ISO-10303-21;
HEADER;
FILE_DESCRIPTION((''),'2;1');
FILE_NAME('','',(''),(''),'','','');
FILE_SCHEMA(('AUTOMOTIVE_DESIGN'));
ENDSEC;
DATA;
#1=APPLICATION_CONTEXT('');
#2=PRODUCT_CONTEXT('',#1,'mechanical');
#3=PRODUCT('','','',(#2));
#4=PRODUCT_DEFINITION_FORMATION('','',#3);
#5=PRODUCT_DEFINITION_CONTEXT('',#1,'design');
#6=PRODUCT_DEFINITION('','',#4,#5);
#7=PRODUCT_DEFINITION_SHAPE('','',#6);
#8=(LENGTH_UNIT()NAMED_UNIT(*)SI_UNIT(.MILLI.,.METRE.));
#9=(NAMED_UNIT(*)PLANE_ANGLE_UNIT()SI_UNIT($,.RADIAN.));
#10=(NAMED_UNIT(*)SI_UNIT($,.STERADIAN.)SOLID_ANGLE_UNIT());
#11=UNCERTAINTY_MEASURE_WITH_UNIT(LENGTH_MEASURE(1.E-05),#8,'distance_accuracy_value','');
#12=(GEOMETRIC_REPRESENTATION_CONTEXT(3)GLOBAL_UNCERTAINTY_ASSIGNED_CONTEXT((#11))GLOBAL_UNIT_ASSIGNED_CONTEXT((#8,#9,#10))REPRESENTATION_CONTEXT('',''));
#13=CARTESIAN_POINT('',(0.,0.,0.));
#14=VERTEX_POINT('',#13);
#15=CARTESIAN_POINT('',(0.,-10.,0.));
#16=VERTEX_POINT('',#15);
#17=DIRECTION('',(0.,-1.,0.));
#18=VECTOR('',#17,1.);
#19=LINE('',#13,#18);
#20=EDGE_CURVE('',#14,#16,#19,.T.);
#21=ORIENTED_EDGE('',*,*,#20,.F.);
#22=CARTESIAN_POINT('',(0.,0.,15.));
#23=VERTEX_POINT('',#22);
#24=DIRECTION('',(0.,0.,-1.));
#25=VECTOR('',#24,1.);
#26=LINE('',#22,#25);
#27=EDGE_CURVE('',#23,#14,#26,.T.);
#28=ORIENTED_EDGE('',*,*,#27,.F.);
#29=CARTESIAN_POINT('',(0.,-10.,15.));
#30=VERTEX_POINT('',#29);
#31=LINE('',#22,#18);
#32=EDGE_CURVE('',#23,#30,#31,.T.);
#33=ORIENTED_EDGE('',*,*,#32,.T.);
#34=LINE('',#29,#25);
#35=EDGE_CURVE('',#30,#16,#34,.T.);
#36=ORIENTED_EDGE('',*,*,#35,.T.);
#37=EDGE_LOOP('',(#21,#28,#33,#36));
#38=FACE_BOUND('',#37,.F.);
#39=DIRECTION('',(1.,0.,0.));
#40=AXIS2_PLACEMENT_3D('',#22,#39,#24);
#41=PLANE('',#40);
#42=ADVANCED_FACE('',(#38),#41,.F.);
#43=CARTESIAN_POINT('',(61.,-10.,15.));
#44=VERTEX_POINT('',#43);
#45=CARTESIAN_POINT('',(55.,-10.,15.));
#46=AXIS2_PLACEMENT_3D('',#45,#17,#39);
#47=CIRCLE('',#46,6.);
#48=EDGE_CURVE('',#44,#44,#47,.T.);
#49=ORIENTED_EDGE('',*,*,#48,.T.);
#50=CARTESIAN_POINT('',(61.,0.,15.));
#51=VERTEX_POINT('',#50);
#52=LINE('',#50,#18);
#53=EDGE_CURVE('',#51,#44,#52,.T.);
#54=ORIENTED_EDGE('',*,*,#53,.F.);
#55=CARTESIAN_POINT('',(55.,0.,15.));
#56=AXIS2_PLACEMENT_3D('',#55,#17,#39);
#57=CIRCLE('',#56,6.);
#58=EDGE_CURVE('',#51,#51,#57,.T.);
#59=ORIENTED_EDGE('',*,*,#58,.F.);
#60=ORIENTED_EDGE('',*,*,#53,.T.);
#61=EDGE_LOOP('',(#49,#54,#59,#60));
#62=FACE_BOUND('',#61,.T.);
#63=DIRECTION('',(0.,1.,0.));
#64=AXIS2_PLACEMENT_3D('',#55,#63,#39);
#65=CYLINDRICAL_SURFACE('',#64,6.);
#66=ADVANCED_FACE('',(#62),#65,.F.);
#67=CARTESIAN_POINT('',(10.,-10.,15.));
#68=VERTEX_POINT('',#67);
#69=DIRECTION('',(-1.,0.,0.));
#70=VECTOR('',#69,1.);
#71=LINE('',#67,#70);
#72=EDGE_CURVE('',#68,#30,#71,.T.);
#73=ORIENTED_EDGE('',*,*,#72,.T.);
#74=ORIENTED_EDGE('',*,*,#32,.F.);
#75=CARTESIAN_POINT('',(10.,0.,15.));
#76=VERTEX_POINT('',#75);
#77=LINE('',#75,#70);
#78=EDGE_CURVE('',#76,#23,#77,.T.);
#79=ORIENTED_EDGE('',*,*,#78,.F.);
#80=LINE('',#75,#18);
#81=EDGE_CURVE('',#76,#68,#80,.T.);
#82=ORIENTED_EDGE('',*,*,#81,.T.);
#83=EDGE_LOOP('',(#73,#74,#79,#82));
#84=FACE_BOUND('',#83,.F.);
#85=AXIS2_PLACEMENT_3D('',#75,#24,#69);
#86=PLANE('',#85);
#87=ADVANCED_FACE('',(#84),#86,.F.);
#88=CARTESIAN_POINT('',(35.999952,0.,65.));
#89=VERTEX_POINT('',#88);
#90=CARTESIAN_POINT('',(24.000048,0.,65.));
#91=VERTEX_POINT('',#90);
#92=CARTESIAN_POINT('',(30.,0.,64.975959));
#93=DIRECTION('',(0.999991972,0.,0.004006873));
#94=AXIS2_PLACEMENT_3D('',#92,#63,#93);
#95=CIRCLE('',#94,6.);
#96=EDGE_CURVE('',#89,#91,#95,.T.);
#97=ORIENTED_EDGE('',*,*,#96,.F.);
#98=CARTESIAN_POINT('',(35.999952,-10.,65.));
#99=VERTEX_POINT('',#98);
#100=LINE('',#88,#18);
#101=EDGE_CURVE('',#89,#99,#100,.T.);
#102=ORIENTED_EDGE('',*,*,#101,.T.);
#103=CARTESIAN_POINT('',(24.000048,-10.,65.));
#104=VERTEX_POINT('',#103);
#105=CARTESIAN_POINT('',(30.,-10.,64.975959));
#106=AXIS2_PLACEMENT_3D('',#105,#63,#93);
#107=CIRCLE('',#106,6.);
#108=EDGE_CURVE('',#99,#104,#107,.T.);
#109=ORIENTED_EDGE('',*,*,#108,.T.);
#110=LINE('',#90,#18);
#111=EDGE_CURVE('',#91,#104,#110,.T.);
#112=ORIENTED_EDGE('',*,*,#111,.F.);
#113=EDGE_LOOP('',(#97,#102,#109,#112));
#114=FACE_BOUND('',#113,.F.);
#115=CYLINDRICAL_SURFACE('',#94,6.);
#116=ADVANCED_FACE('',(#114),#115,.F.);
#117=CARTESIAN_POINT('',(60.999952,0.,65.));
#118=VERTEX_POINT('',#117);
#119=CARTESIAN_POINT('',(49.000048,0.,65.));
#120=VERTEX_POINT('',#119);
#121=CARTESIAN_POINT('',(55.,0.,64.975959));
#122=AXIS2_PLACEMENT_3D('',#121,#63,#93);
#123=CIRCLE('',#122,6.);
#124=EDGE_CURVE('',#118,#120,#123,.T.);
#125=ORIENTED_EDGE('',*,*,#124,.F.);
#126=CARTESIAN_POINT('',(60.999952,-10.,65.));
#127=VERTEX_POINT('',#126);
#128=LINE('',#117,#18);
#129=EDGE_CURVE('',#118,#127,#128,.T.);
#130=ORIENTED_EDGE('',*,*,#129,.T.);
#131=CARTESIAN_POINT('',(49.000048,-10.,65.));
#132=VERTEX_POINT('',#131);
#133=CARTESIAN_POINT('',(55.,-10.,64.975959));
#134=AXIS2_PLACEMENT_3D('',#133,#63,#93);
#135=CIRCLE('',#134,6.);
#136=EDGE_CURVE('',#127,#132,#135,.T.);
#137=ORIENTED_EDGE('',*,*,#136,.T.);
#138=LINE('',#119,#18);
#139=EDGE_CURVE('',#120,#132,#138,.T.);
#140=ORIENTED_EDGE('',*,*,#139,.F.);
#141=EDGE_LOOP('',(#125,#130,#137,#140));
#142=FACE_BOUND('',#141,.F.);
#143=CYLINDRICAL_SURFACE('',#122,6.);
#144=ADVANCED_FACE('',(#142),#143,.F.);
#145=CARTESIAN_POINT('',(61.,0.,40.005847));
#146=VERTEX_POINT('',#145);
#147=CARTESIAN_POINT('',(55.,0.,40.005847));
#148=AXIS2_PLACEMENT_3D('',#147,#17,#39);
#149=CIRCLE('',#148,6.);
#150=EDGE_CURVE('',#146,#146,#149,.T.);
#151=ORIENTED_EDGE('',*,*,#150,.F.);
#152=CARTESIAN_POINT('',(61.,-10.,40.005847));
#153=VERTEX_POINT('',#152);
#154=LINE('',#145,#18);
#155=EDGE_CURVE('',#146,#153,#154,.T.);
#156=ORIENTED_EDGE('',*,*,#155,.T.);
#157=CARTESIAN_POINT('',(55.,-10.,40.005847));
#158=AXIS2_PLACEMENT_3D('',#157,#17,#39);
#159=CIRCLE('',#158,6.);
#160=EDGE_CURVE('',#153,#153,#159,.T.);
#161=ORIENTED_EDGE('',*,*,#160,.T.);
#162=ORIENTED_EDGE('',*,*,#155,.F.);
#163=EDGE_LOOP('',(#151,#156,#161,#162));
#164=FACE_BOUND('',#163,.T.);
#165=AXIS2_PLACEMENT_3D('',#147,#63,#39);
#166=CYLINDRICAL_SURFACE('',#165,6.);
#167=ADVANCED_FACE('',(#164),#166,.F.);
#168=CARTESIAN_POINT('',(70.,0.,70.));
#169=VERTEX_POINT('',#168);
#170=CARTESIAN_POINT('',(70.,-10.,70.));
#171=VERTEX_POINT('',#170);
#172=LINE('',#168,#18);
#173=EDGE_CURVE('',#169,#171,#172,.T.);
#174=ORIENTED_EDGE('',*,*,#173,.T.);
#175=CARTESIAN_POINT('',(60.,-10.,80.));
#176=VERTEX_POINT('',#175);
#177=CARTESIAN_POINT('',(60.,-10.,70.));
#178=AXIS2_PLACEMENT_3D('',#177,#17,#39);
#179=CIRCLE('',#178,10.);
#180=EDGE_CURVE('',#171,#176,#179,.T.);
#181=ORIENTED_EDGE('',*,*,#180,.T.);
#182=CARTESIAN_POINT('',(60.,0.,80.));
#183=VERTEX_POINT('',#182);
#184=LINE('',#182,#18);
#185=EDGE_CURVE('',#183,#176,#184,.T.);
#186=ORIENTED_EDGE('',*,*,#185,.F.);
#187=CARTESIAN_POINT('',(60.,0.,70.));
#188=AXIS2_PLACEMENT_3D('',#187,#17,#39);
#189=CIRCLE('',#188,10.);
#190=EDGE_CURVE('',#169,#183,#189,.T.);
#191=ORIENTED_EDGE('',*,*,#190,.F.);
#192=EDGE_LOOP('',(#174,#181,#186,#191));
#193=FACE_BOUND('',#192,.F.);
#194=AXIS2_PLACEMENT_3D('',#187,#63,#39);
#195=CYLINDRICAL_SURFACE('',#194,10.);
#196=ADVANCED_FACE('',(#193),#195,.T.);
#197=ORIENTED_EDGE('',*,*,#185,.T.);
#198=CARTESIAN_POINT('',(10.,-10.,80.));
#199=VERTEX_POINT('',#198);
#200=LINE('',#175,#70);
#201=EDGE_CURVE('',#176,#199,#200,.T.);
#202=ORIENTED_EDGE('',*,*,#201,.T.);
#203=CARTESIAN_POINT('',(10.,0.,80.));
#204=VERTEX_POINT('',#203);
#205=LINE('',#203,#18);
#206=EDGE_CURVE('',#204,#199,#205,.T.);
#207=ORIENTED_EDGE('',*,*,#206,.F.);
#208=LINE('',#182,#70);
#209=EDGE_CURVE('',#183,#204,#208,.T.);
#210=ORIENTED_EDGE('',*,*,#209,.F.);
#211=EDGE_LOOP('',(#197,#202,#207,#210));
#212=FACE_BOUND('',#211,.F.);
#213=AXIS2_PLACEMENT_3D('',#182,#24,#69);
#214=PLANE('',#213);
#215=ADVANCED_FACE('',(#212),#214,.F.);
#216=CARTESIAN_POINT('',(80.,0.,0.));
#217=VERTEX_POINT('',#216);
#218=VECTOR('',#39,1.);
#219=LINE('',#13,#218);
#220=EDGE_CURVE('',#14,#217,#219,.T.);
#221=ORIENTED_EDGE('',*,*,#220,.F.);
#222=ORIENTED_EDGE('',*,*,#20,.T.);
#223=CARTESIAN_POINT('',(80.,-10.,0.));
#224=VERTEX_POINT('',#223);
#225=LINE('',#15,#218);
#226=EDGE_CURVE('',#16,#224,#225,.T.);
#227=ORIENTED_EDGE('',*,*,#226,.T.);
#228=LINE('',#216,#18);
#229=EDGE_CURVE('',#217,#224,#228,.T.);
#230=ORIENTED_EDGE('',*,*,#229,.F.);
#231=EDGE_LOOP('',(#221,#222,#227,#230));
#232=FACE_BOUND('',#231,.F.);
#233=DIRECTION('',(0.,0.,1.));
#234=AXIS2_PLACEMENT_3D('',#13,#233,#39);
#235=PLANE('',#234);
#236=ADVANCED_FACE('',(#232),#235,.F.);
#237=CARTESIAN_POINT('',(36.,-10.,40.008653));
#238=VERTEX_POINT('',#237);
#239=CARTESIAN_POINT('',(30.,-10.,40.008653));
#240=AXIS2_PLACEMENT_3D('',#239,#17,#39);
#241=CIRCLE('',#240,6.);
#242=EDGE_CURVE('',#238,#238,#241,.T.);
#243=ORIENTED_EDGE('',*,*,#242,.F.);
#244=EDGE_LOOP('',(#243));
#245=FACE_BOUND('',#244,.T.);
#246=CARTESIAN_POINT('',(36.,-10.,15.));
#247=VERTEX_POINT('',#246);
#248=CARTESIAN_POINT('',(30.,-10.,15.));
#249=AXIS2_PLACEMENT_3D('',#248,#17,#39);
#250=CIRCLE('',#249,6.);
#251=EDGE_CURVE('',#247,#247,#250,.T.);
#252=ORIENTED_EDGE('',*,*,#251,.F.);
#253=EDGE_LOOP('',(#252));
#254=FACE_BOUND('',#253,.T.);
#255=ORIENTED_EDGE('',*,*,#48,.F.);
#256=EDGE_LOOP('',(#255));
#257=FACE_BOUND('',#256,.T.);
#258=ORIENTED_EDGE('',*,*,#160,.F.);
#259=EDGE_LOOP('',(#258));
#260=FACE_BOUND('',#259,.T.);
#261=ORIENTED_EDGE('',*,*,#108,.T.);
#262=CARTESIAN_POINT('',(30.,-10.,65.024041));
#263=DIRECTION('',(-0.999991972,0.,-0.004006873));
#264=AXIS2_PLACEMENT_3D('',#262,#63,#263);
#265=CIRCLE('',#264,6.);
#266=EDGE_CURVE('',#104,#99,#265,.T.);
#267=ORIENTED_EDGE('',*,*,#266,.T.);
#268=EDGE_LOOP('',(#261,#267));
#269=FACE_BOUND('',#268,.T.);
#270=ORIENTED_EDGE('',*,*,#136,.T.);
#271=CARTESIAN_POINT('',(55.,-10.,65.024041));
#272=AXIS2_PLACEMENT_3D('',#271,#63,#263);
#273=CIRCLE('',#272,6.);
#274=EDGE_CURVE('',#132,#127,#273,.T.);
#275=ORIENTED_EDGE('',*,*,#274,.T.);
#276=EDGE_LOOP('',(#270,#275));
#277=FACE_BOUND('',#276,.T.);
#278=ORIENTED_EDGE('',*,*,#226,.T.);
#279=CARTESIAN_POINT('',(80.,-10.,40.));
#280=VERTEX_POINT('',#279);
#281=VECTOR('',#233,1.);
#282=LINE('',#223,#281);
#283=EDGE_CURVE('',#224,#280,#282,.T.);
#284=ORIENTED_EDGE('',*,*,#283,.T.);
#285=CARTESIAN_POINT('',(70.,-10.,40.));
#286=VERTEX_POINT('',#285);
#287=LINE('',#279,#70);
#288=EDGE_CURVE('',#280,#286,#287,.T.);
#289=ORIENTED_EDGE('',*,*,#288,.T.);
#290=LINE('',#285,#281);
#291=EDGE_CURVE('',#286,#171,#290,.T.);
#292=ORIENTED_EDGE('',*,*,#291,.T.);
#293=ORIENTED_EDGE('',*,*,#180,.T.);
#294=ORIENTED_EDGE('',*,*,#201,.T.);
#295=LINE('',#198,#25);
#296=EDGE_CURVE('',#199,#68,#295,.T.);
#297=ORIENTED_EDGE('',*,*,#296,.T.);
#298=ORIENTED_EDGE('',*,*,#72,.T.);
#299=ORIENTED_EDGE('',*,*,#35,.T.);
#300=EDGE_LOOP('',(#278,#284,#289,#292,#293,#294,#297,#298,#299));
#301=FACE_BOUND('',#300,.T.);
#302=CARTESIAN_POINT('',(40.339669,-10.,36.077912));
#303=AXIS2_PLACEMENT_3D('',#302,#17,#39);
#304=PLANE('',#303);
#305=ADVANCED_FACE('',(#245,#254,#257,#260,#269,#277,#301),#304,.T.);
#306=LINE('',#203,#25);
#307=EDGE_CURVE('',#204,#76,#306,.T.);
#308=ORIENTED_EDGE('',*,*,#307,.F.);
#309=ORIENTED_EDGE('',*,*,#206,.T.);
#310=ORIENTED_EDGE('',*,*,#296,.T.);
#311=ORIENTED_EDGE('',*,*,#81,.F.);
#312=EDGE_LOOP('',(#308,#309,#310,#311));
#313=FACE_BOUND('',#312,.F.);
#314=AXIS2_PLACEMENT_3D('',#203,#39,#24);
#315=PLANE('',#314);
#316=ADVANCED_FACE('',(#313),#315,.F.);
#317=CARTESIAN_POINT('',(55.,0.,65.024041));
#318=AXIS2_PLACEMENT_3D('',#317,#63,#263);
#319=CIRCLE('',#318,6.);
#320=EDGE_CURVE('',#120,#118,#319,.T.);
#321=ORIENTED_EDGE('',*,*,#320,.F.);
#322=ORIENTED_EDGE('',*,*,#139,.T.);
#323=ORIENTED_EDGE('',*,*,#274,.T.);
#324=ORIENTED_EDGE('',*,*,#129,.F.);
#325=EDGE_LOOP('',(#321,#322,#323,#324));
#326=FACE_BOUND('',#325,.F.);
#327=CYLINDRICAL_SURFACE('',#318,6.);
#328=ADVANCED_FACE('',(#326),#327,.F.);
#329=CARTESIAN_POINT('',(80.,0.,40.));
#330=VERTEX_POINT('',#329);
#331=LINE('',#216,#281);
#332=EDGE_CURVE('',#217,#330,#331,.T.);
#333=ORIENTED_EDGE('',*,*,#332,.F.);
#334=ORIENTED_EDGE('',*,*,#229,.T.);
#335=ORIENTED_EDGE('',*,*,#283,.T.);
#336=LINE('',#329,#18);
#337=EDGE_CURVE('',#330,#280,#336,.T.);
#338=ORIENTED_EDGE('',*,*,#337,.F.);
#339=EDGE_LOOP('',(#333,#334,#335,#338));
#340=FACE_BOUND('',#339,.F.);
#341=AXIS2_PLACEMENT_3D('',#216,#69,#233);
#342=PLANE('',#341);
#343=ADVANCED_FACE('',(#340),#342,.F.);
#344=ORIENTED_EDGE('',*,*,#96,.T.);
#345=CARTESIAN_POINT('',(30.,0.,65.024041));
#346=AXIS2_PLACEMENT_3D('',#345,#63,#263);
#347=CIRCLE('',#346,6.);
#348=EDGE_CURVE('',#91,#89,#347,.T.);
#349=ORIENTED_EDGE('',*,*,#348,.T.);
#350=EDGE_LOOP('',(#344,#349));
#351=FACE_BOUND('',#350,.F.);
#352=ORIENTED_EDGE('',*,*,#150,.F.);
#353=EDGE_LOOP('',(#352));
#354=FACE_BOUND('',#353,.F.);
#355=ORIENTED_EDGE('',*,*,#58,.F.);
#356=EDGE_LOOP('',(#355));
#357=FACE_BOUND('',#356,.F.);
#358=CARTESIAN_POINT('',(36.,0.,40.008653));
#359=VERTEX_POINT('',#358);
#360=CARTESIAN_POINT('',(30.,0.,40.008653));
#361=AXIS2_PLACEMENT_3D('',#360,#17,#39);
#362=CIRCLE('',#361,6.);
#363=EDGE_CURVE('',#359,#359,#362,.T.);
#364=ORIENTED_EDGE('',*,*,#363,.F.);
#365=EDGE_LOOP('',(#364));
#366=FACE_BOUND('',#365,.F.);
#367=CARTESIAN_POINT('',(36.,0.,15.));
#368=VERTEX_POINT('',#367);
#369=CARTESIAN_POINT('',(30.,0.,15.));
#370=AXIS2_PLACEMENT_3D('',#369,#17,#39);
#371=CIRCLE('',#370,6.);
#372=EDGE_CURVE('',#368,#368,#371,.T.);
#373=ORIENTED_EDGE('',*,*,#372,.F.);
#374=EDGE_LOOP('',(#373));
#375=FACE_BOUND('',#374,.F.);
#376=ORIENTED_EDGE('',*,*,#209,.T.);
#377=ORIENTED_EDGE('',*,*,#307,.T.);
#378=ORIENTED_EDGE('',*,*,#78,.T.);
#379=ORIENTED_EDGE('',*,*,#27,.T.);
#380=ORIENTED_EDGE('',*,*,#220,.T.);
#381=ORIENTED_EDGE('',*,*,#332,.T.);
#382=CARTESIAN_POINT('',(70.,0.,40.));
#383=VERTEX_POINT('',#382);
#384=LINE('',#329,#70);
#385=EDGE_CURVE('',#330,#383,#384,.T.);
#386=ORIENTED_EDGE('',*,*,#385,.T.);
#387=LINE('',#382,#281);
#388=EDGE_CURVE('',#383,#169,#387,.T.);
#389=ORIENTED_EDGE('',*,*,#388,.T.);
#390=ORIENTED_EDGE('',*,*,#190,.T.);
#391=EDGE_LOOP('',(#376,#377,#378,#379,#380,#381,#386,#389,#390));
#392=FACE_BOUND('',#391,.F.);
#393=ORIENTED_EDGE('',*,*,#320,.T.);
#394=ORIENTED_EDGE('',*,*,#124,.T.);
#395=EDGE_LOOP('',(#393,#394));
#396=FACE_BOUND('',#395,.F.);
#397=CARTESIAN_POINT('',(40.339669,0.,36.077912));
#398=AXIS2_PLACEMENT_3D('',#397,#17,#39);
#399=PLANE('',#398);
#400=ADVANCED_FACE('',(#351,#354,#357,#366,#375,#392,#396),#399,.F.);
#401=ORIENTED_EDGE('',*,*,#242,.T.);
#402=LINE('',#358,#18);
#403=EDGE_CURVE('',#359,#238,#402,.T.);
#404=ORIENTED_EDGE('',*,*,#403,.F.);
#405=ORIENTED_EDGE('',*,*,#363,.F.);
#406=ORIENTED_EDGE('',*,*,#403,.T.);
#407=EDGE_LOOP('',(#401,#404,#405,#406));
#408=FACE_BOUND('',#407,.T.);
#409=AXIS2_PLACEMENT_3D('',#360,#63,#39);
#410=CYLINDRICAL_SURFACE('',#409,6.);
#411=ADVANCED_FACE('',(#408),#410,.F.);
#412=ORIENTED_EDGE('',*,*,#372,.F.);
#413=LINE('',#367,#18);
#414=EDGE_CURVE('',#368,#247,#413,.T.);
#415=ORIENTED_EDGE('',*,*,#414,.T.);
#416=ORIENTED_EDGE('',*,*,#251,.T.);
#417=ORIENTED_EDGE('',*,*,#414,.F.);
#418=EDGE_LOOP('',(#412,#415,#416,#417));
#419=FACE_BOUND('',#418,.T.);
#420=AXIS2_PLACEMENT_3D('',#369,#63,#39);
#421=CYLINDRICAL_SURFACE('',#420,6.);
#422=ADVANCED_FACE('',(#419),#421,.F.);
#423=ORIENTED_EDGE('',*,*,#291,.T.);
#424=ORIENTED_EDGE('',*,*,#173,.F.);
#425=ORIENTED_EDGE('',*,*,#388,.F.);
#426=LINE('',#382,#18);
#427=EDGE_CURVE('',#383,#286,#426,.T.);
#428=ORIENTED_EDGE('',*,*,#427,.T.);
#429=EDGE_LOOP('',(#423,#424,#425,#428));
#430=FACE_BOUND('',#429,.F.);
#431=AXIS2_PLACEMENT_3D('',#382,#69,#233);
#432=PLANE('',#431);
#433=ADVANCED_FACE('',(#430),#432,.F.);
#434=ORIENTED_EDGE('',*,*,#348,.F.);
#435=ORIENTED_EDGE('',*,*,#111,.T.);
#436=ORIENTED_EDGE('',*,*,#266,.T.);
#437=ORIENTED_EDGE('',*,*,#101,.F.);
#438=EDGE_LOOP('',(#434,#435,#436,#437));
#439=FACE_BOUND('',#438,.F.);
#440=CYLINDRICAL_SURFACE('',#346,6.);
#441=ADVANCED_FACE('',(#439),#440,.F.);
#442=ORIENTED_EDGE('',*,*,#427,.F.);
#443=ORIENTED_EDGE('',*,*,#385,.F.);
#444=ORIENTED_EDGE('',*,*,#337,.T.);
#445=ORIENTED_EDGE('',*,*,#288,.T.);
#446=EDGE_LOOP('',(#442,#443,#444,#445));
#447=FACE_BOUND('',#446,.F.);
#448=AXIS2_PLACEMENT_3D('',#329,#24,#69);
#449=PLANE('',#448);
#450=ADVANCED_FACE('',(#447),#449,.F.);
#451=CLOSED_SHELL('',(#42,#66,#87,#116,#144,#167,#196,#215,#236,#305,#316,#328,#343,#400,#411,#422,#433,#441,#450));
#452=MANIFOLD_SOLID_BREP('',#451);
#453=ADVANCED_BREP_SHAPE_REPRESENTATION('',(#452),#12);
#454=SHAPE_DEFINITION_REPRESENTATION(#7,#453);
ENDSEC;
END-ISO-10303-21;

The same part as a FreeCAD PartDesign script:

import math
import FreeCAD as App
import Part
import Sketcher
Q = App.Units.Quantity

doc = App.newDocument("Part")
body = doc.addObject("PartDesign::Body", "Body")

sketch1 = body.newObject("Sketcher::SketchObject", "Sketch")
sketch1.AttachmentSupport = (doc.getObject("XZ_Plane"), [""])
sketch1.MapMode = "FlatFace"
sketch1.addGeometry(Part.LineSegment(App.Vector(10, 15, 0), App.Vector(0, 15, 0)), False)
sketch1.addGeometry(Part.LineSegment(App.Vector(0, 15, 0), App.Vector(0, 0, 0)), False)
sketch1.addGeometry(Part.LineSegment(App.Vector(0, 0, 0), App.Vector(80, 0, 0)), False)
sketch1.addGeometry(Part.LineSegment(App.Vector(80, 0, 0), App.Vector(80, 40, 0)), False)
sketch1.addGeometry(Part.LineSegment(App.Vector(80, 40, 0), App.Vector(70, 40, 0)), False)
sketch1.addGeometry(Part.LineSegment(App.Vector(70, 40, 0), App.Vector(70, 70, 0)), False)
sketch1.addGeometry(Part.ArcOfCircle(Part.Circle(App.Vector(60, 70, 0), App.Vector(0, 0, 1), 10), math.radians(0), math.radians(90)), False)
sketch1.addGeometry(Part.LineSegment(App.Vector(60, 80, 0), App.Vector(10, 80, 0)), False)
sketch1.addGeometry(Part.LineSegment(App.Vector(10, 80, 0), App.Vector(10, 15, 0)), False)
sketch1.addGeometry(Part.Circle(App.Vector(30, 15, 0), App.Vector(0, 0, 1), 6), False)
sketch1.addGeometry(Part.Circle(App.Vector(30, 40.008653, 0), App.Vector(0, 0, 1), 6), False)
sketch1.addGeometry(Part.Circle(App.Vector(55, 15, 0), App.Vector(0, 0, 1), 6), False)
sketch1.addGeometry(Part.Circle(App.Vector(55, 40.005847, 0), App.Vector(0, 0, 1), 6), False)
sketch1.addGeometry(Part.ArcOfCircle(Part.Circle(App.Vector(30, 64.975959, 0), App.Vector(0, 0, 1), 6), math.radians(179.770423), math.radians(360.229577)), False)
sketch1.addGeometry(Part.ArcOfCircle(Part.Circle(App.Vector(30, 65.024041, 0), App.Vector(0, 0, 1), 6), math.radians(-0.229577), math.radians(180.229577)), False)
sketch1.addGeometry(Part.ArcOfCircle(Part.Circle(App.Vector(55, 64.975959, 0), App.Vector(0, 0, 1), 6), math.radians(179.770423), math.radians(360.229577)), False)
sketch1.addGeometry(Part.ArcOfCircle(Part.Circle(App.Vector(55, 65.024041, 0), App.Vector(0, 0, 1), 6), math.radians(-0.229577), math.radians(180.229577)), False)
sketch1.addConstraint(Sketcher.Constraint("Coincident", 0, 2, 1, 1))
sketch1.addConstraint(Sketcher.Constraint("Coincident", 1, 2, 2, 1))
sketch1.addConstraint(Sketcher.Constraint("Coincident", 2, 2, 3, 1))
sketch1.addConstraint(Sketcher.Constraint("Coincident", 3, 2, 4, 1))
sketch1.addConstraint(Sketcher.Constraint("Coincident", 4, 2, 5, 1))
sketch1.addConstraint(Sketcher.Constraint("Tangent", 5, 2, 6, 1))
sketch1.addConstraint(Sketcher.Constraint("Tangent", 6, 2, 7, 1))
sketch1.addConstraint(Sketcher.Constraint("Coincident", 7, 2, 8, 1))
sketch1.addConstraint(Sketcher.Constraint("Coincident", 8, 2, 0, 1))
sketch1.addConstraint(Sketcher.Constraint("Coincident", 13, 1, 14, 2))
sketch1.addConstraint(Sketcher.Constraint("Coincident", 14, 1, 13, 2))
sketch1.addConstraint(Sketcher.Constraint("Coincident", 15, 1, 16, 2))
sketch1.addConstraint(Sketcher.Constraint("Coincident", 16, 1, 15, 2))
sketch1.addConstraint(Sketcher.Constraint("Horizontal", 0))
sketch1.addConstraint(Sketcher.Constraint("Vertical", 1))
sketch1.addConstraint(Sketcher.Constraint("Horizontal", 2))
sketch1.addConstraint(Sketcher.Constraint("Vertical", 3))
sketch1.addConstraint(Sketcher.Constraint("Horizontal", 4))
sketch1.addConstraint(Sketcher.Constraint("Vertical", 5))
sketch1.addConstraint(Sketcher.Constraint("Horizontal", 7))
sketch1.addConstraint(Sketcher.Constraint("Vertical", 8))
sketch1.addConstraint(Sketcher.Constraint("Coincident", 1, 2, -1, 1))
sketch1.addConstraint(Sketcher.Constraint("Equal", 9, 10))
sketch1.addConstraint(Sketcher.Constraint("Equal", 10, 11))
sketch1.addConstraint(Sketcher.Constraint("Equal", 11, 12))
sketch1.addConstraint(Sketcher.Constraint("Equal", 12, 13))
sketch1.addConstraint(Sketcher.Constraint("Equal", 13, 14))
sketch1.addConstraint(Sketcher.Constraint("Equal", 14, 15))
sketch1.addConstraint(Sketcher.Constraint("Equal", 15, 16))
sketch1.addConstraint(Sketcher.Constraint("Horizontal", 9, 3, 11, 3))
sketch1.addConstraint(Sketcher.Constraint("Horizontal", 13, 3, 15, 3))
sketch1.addConstraint(Sketcher.Constraint("Horizontal", 14, 3, 16, 3))
sketch1.addConstraint(Sketcher.Constraint("Horizontal", 11, 3, 0, 2))
sketch1.addConstraint(Sketcher.Constraint("Horizontal", 13, 1, 14, 1))
sketch1.addConstraint(Sketcher.Constraint("Horizontal", 14, 1, 15, 1))
sketch1.addConstraint(Sketcher.Constraint("Vertical", 9, 3, 10, 3))
sketch1.addConstraint(Sketcher.Constraint("Vertical", 11, 3, 12, 3))
sketch1.addConstraint(Sketcher.Constraint("Vertical", 10, 3, 13, 3))
sketch1.addConstraint(Sketcher.Constraint("Vertical", 12, 3, 15, 3))
sketch1.addConstraint(Sketcher.Constraint("Equal", 0, 4))
sketch1.addConstraint(Sketcher.Constraint("Diameter", 9, Q("12 mm")))
sketch1.addConstraint(Sketcher.Constraint("Radius", 6, Q("10 mm")))
sketch1.addConstraint(Sketcher.Constraint("DistanceX", 0, 2, 0, 1, Q("10 mm")))
sketch1.addConstraint(Sketcher.Constraint("DistanceX", 2, 1, 2, 2, Q("80 mm")))
sketch1.addConstraint(Sketcher.Constraint("DistanceY", 1, 2, 1, 1, Q("15 mm")))
sketch1.addConstraint(Sketcher.Constraint("DistanceY", 3, 1, 3, 2, Q("40 mm")))
sketch1.addConstraint(Sketcher.Constraint("DistanceY", 5, 1, 5, 2, Q("30 mm")))
sketch1.addConstraint(Sketcher.Constraint("DistanceX", -1, 1, 9, 3, Q("30 mm")))
sketch1.addConstraint(Sketcher.Constraint("DistanceX", -1, 1, 11, 3, Q("55 mm")))
sketch1.addConstraint(Sketcher.Constraint("DistanceY", -1, 1, 13, 1, Q("65 mm")))
sketch1.addConstraint(Sketcher.Constraint("DistanceY", -1, 1, 13, 3, Q("64.975959 mm")))
sketch1.addConstraint(Sketcher.Constraint("DistanceY", 12, 3, 13, 3, Q("24.970111 mm")))
sketch1.addConstraint(Sketcher.Constraint("DistanceY", -1, 1, 10, 3, Q("40.008653 mm")))
pad1 = body.newObject("PartDesign::Pad", "Pad")
pad1.Profile = sketch1
pad1.Length = 10

doc.recompute()
